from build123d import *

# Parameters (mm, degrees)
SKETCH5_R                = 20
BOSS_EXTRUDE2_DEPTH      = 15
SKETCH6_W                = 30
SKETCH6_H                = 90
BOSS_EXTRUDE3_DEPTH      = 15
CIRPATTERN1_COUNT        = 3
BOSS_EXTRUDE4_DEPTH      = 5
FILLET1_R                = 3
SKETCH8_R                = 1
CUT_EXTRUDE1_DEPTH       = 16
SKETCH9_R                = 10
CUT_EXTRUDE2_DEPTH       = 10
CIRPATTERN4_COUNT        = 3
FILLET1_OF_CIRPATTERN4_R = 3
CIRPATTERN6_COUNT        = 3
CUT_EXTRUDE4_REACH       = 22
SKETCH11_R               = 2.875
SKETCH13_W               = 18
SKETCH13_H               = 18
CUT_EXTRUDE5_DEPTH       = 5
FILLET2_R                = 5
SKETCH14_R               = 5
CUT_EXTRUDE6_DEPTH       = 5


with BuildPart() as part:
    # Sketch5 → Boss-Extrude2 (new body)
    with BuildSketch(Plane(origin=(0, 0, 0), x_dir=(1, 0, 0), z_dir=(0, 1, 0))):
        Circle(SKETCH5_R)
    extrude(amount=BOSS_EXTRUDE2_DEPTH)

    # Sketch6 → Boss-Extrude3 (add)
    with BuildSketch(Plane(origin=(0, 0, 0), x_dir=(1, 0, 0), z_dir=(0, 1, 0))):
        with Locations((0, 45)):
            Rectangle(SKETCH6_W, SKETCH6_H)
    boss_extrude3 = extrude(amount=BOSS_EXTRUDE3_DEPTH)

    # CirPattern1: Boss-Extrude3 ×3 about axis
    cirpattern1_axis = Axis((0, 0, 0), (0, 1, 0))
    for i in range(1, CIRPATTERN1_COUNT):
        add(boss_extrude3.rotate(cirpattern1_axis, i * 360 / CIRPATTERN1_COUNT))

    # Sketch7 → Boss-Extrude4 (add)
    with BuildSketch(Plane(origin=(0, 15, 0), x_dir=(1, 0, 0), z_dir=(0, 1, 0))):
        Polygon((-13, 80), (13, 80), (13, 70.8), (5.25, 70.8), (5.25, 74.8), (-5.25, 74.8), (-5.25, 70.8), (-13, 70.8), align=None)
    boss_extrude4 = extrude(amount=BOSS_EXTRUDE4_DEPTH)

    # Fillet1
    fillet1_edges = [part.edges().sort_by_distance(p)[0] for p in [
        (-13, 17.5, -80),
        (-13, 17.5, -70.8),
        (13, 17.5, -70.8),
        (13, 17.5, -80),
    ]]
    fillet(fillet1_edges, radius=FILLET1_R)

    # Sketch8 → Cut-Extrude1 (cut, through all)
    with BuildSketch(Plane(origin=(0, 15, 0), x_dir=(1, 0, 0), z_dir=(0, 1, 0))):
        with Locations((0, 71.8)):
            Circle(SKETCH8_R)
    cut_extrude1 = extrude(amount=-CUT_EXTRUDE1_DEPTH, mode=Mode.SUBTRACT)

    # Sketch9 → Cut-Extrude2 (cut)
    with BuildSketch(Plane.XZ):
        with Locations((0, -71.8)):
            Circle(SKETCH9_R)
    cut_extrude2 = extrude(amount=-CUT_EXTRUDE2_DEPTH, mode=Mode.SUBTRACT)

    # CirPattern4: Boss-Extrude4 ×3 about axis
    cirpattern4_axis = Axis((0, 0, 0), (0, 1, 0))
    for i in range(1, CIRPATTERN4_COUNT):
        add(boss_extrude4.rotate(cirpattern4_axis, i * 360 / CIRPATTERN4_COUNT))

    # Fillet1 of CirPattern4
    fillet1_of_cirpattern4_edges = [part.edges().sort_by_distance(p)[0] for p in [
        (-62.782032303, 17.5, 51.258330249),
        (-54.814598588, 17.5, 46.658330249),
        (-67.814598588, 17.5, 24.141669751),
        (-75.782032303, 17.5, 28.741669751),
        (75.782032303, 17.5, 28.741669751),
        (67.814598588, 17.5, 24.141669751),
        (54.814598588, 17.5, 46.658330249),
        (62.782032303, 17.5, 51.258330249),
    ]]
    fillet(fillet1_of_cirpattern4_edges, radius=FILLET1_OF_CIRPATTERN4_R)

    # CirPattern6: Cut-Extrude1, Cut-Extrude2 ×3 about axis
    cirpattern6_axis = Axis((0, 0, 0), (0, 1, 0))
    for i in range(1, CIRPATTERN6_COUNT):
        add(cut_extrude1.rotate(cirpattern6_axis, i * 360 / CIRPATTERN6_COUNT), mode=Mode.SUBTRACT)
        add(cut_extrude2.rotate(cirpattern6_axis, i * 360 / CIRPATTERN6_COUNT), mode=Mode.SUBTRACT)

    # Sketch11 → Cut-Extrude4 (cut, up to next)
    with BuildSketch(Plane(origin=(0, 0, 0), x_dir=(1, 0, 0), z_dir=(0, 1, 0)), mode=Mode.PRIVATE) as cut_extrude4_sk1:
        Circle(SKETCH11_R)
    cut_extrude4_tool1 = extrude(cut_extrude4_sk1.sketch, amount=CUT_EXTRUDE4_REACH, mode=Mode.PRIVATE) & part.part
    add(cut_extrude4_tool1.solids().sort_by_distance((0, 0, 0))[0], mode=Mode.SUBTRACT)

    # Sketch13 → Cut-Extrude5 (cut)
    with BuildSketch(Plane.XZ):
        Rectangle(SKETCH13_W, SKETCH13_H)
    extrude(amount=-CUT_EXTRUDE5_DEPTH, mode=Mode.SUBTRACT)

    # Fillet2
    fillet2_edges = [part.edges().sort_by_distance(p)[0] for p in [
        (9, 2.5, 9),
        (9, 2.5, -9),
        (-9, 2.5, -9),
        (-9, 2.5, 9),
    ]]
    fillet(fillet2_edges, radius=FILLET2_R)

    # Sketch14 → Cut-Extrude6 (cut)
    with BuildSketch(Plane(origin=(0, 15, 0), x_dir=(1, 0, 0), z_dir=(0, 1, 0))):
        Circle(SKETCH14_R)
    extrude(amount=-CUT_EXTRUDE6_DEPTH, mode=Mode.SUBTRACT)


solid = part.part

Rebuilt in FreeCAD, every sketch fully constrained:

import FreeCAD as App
import Part
import Sketcher


def edges_at(feature, points):
    """Names of the edges that pass closest to the given points."""
    edges = feature.Shape.Edges
    near = lambda p: min(range(len(edges)), key=lambda i: edges[i].distToShape(Part.Vertex(*p))[0])
    return sorted({f"Edge{near(p) + 1}" for p in points})

doc = App.newDocument("Part")
body = doc.addObject("PartDesign::Body", "Body")

# Sketch on XZ plane
sketch1 = body.newObject("Sketcher::SketchObject", "Sketch")
sketch1.AttachmentSupport = (doc.getObject("XZ_Plane"), [""])
sketch1.MapMode = "FlatFace"
sketch1.addGeometry(Part.Circle(App.Vector(0, 0, 0), App.Vector(0, 0, 1), 20), False)
sketch1.addConstraint(Sketcher.Constraint("Coincident", 0, 3, -1, 1))
sketch1.addConstraint(Sketcher.Constraint("Diameter", 0, 40.0))
pad1 = body.newObject("PartDesign::Pad", "Pad")
pad1.Profile = sketch1
pad1.Length = 15
pad1.Reversed = True

# Sketch on XZ plane
sketch2 = body.newObject("Sketcher::SketchObject", "Sketch001")
sketch2.AttachmentSupport = (doc.getObject("XZ_Plane"), [""])
sketch2.MapMode = "FlatFace"
sketch2.addGeometry(Part.LineSegment(App.Vector(-15, -90, 0), App.Vector(-15, 0, 0)), False)
sketch2.addGeometry(Part.LineSegment(App.Vector(-15, 0, 0), App.Vector(15, 0, 0)), False)
sketch2.addGeometry(Part.LineSegment(App.Vector(15, 0, 0), App.Vector(15, -90, 0)), False)
sketch2.addGeometry(Part.LineSegment(App.Vector(15, -90, 0), App.Vector(-15, -90, 0)), False)
sketch2.addConstraint(Sketcher.Constraint("Coincident", 0, 2, 1, 1))
sketch2.addConstraint(Sketcher.Constraint("Coincident", 1, 2, 2, 1))
sketch2.addConstraint(Sketcher.Constraint("Coincident", 2, 2, 3, 1))
sketch2.addConstraint(Sketcher.Constraint("Coincident", 3, 2, 0, 1))
sketch2.addConstraint(Sketcher.Constraint("Vertical", 0))
sketch2.addConstraint(Sketcher.Constraint("Horizontal", 1))
sketch2.addConstraint(Sketcher.Constraint("Vertical", 2))
sketch2.addConstraint(Sketcher.Constraint("Horizontal", 3))
sketch2.addConstraint(Sketcher.Constraint("Symmetric", 0, 2, 1, 2, -1, 1))
sketch2.addConstraint(Sketcher.Constraint("DistanceX", 1, 1, 1, 2, 30.0))
sketch2.addConstraint(Sketcher.Constraint("DistanceY", 0, 1, 0, 2, 90.0))
pad2 = body.newObject("PartDesign::Pad", "Pad001")
pad2.Profile = sketch2
pad2.Length = 15
pad2.Reversed = True
doc.recompute()

polarpattern = body.newObject("PartDesign::PolarPattern", "PolarPattern")
polarpattern.Originals = [pad2]
polarpattern.Axis = (doc.getObject("Y_Axis"), [""])
polarpattern.Angle = 360
polarpattern.Occurrences = 3
body.Tip = polarpattern

# Sketch on XZ plane
sketch3 = body.newObject("Sketcher::SketchObject", "Sketch002")
sketch3.AttachmentSupport = (doc.getObject("XZ_Plane"), [""])
sketch3.MapMode = "FlatFace"
sketch3.AttachmentOffset = App.Placement(App.Vector(0, 0, -15), App.Rotation())
sketch3.addGeometry(Part.LineSegment(App.Vector(13, -80, 0), App.Vector(-13, -80, 0)), False)
sketch3.addGeometry(Part.LineSegment(App.Vector(-13, -80, 0), App.Vector(-13, -70.8, 0)), False)
sketch3.addGeometry(Part.LineSegment(App.Vector(-13, -70.8, 0), App.Vector(-5.2, -70.8, 0)), False)
sketch3.addGeometry(Part.LineSegment(App.Vector(-5.2, -70.8, 0), App.Vector(-5.2, -74.8, 0)), False)
sketch3.addGeometry(Part.LineSegment(App.Vector(-5.2, -74.8, 0), App.Vector(5.2, -74.8, 0)), False)
sketch3.addGeometry(Part.LineSegment(App.Vector(5.2, -74.8, 0), App.Vector(5.2, -70.8, 0)), False)
sketch3.addGeometry(Part.LineSegment(App.Vector(5.2, -70.8, 0), App.Vector(13, -70.8, 0)), False)
sketch3.addGeometry(Part.LineSegment(App.Vector(13, -70.8, 0), App.Vector(13, -80, 0)), False)
sketch3.addConstraint(Sketcher.Constraint("Coincident", 0, 2, 1, 1))
sketch3.addConstraint(Sketcher.Constraint("Coincident", 1, 2, 2, 1))
sketch3.addConstraint(Sketcher.Constraint("Coincident", 2, 2, 3, 1))
sketch3.addConstraint(Sketcher.Constraint("Coincident", 3, 2, 4, 1))
sketch3.addConstraint(Sketcher.Constraint("Coincident", 4, 2, 5, 1))
sketch3.addConstraint(Sketcher.Constraint("Coincident", 5, 2, 6, 1))
sketch3.addConstraint(Sketcher.Constraint("Coincident", 6, 2, 7, 1))
sketch3.addConstraint(Sketcher.Constraint("Coincident", 7, 2, 0, 1))
sketch3.addConstraint(Sketcher.Constraint("Horizontal", 0))
sketch3.addConstraint(Sketcher.Constraint("Vertical", 1))
sketch3.addConstraint(Sketcher.Constraint("Horizontal", 2))
sketch3.addConstraint(Sketcher.Constraint("Vertical", 3))
sketch3.addConstraint(Sketcher.Constraint("Horizontal", 4))
sketch3.addConstraint(Sketcher.Constraint("Vertical", 5))
sketch3.addConstraint(Sketcher.Constraint("Horizontal", 6))
sketch3.addConstraint(Sketcher.Constraint("Vertical", 7))
sketch3.addConstraint(Sketcher.Constraint("Symmetric", 2, 2, 5, 2, -2))
sketch3.addConstraint(Sketcher.Constraint("Equal", 2, 6))
sketch3.addConstraint(Sketcher.Constraint("DistanceX", 0, 2, 0, 1, 26.0))
sketch3.addConstraint(Sketcher.Constraint("DistanceY", 3, 2, 3, 1, 4.0))
sketch3.addConstraint(Sketcher.Constraint("DistanceX", 4, 1, 4, 2, 10.5))
sketch3.addConstraint(Sketcher.Constraint("DistanceY", 1, 1, 1, 2, 9.2))
sketch3.addConstraint(Sketcher.Constraint("DistanceY", 0, 2, -1, 1, 80.0))
pad3 = body.newObject("PartDesign::Pad", "Pad002")
pad3.Profile = sketch3
pad3.Length = 5
pad3.Reversed = True
doc.recompute()

fillet = body.newObject("PartDesign::Fillet", "Fillet")
fillet.Base = (pad3, edges_at(pad3, [
    (-13, 17.5, -80),
    (-13, 17.5, -70.8),
    (13, 17.5, -70.8),
    (13, 17.5, -80),
]))
fillet.Radius = 3

# Sketch on XZ plane
sketch4 = body.newObject("Sketcher::SketchObject", "Sketch003")
sketch4.AttachmentSupport = (doc.getObject("XZ_Plane"), [""])
sketch4.MapMode = "FlatFace"
sketch4.AttachmentOffset = App.Placement(App.Vector(0, 0, -15), App.Rotation())
sketch4.addGeometry(Part.Circle(App.Vector(0, -71.8, 0), App.Vector(0, 0, 1), 1), False)
sketch4.addConstraint(Sketcher.Constraint("PointOnObject", 0, 3, -2))
sketch4.addConstraint(Sketcher.Constraint("Diameter", 0, 2.0))
sketch4.addConstraint(Sketcher.Constraint("DistanceY", 0, 3, -1, 1, 71.8))
pocket1 = body.newObject("PartDesign::Pocket", "Pocket")
pocket1.Profile = sketch4
pocket1.Type = "ThroughAll"
pocket1.Reversed = True

# Sketch on XZ plane
sketch5 = body.newObject("Sketcher::SketchObject", "Sketch004")
sketch5.AttachmentSupport = (doc.getObject("XZ_Plane"), [""])
sketch5.MapMode = "FlatFace"
sketch5.addGeometry(Part.Circle(App.Vector(0, -72, 0), App.Vector(0, 0, 1), 10), False)
sketch5.addConstraint(Sketcher.Constraint("PointOnObject", 0, 3, -2))
sketch5.addConstraint(Sketcher.Constraint("Diameter", 0, 20.0))
sketch5.addConstraint(Sketcher.Constraint("DistanceY", 0, 3, -1, 1, 71.8))
pocket2 = body.newObject("PartDesign::Pocket", "Pocket001")
pocket2.Profile = sketch5
pocket2.Length = 10
doc.recompute()

polarpattern2 = body.newObject("PartDesign::PolarPattern", "PolarPattern001")
polarpattern2.Originals = [pad3]
polarpattern2.Axis = (doc.getObject("Y_Axis"), [""])
polarpattern2.Angle = 360
polarpattern2.Occurrences = 3
body.Tip = polarpattern2
doc.recompute()

fillet2 = body.newObject("PartDesign::Fillet", "Fillet001")
fillet2.Base = (polarpattern2, edges_at(polarpattern2, [
    (-62.782, 17.5, 51.258),
    (-54.815, 17.5, 46.658),
    (-67.815, 17.5, 24.142),
    (-75.782, 17.5, 28.742),
    (75.782, 17.5, 28.742),
    (67.815, 17.5, 24.142),
    (54.815, 17.5, 46.658),
    (62.782, 17.5, 51.258),
]))
fillet2.Radius = 3
doc.recompute()

polarpattern3 = body.newObject("PartDesign::PolarPattern", "PolarPattern002")
polarpattern3.Originals = [pocket1, pocket2]
polarpattern3.Axis = (doc.getObject("Y_Axis"), [""])
polarpattern3.Angle = 360
polarpattern3.Occurrences = 3
body.Tip = polarpattern3

# Sketch on XZ plane
sketch6 = body.newObject("Sketcher::SketchObject", "Sketch005")
sketch6.AttachmentSupport = (doc.getObject("XZ_Plane"), [""])
sketch6.MapMode = "FlatFace"
sketch6.addGeometry(Part.Circle(App.Vector(0, 0, 0), App.Vector(0, 0, 1), 2.9), False)
sketch6.addConstraint(Sketcher.Constraint("Coincident", 0, 3, -1, 1))
sketch6.addConstraint(Sketcher.Constraint("Diameter", 0, 5.75))
pocket3 = body.newObject("PartDesign::Pocket", "Pocket002")
pocket3.Profile = sketch6
pocket3.Type = "UpToFirst"

# Sketch on XZ plane
sketch7 = body.newObject("Sketcher::SketchObject", "Sketch006")
sketch7.AttachmentSupport = (doc.getObject("XZ_Plane"), [""])
sketch7.MapMode = "FlatFace"
sketch7.addGeometry(Part.LineSegment(App.Vector(-9, 9, 0), App.Vector(-9, -9, 0)), False)
sketch7.addGeometry(Part.LineSegment(App.Vector(-9, -9, 0), App.Vector(9, -9, 0)), False)
sketch7.addGeometry(Part.LineSegment(App.Vector(9, -9, 0), App.Vector(9, 9, 0)), False)
sketch7.addGeometry(Part.LineSegment(App.Vector(9, 9, 0), App.Vector(-9, 9, 0)), False)
sketch7.addConstraint(Sketcher.Constraint("Coincident", 0, 2, 1, 1))
sketch7.addConstraint(Sketcher.Constraint("Coincident", 1, 2, 2, 1))
sketch7.addConstraint(Sketcher.Constraint("Coincident", 2, 2, 3, 1))
sketch7.addConstraint(Sketcher.Constraint("Coincident", 3, 2, 0, 1))
sketch7.addConstraint(Sketcher.Constraint("Vertical", 0))
sketch7.addConstraint(Sketcher.Constraint("Horizontal", 1))
sketch7.addConstraint(Sketcher.Constraint("Vertical", 2))
sketch7.addConstraint(Sketcher.Constraint("Horizontal", 3))
sketch7.addConstraint(Sketcher.Constraint("Symmetric", 0, 2, 2, 2, -1, 1))
sketch7.addConstraint(Sketcher.Constraint("Equal", 3, 0))
sketch7.addConstraint(Sketcher.Constraint("DistanceX", 1, 1, 1, 2, 18.0))
pocket4 = body.newObject("PartDesign::Pocket", "Pocket003")
pocket4.Profile = sketch7
pocket4.Length = 5
doc.recompute()

fillet3 = body.newObject("PartDesign::Fillet", "Fillet002")
fillet3.Base = (pocket4, edges_at(pocket4, [
    (9, 2.5, 9),
    (9, 2.5, -9),
    (-9, 2.5, -9),
    (-9, 2.5, 9),
]))
fillet3.Radius = 5

# Sketch on XZ plane
sketch8 = body.newObject("Sketcher::SketchObject", "Sketch007")
sketch8.AttachmentSupport = (doc.getObject("XZ_Plane"), [""])
sketch8.MapMode = "FlatFace"
sketch8.AttachmentOffset = App.Placement(App.Vector(0, 0, -15), App.Rotation())
sketch8.addGeometry(Part.Circle(App.Vector(0, 0, 0), App.Vector(0, 0, 1), 5), False)
sketch8.addConstraint(Sketcher.Constraint("Coincident", 0, 3, -1, 1))
sketch8.addConstraint(Sketcher.Constraint("Diameter", 0, 10.0))
pocket5 = body.newObject("PartDesign::Pocket", "Pocket004")
pocket5.Profile = sketch8
pocket5.Length = 5
pocket5.Reversed = True

doc.recompute()
